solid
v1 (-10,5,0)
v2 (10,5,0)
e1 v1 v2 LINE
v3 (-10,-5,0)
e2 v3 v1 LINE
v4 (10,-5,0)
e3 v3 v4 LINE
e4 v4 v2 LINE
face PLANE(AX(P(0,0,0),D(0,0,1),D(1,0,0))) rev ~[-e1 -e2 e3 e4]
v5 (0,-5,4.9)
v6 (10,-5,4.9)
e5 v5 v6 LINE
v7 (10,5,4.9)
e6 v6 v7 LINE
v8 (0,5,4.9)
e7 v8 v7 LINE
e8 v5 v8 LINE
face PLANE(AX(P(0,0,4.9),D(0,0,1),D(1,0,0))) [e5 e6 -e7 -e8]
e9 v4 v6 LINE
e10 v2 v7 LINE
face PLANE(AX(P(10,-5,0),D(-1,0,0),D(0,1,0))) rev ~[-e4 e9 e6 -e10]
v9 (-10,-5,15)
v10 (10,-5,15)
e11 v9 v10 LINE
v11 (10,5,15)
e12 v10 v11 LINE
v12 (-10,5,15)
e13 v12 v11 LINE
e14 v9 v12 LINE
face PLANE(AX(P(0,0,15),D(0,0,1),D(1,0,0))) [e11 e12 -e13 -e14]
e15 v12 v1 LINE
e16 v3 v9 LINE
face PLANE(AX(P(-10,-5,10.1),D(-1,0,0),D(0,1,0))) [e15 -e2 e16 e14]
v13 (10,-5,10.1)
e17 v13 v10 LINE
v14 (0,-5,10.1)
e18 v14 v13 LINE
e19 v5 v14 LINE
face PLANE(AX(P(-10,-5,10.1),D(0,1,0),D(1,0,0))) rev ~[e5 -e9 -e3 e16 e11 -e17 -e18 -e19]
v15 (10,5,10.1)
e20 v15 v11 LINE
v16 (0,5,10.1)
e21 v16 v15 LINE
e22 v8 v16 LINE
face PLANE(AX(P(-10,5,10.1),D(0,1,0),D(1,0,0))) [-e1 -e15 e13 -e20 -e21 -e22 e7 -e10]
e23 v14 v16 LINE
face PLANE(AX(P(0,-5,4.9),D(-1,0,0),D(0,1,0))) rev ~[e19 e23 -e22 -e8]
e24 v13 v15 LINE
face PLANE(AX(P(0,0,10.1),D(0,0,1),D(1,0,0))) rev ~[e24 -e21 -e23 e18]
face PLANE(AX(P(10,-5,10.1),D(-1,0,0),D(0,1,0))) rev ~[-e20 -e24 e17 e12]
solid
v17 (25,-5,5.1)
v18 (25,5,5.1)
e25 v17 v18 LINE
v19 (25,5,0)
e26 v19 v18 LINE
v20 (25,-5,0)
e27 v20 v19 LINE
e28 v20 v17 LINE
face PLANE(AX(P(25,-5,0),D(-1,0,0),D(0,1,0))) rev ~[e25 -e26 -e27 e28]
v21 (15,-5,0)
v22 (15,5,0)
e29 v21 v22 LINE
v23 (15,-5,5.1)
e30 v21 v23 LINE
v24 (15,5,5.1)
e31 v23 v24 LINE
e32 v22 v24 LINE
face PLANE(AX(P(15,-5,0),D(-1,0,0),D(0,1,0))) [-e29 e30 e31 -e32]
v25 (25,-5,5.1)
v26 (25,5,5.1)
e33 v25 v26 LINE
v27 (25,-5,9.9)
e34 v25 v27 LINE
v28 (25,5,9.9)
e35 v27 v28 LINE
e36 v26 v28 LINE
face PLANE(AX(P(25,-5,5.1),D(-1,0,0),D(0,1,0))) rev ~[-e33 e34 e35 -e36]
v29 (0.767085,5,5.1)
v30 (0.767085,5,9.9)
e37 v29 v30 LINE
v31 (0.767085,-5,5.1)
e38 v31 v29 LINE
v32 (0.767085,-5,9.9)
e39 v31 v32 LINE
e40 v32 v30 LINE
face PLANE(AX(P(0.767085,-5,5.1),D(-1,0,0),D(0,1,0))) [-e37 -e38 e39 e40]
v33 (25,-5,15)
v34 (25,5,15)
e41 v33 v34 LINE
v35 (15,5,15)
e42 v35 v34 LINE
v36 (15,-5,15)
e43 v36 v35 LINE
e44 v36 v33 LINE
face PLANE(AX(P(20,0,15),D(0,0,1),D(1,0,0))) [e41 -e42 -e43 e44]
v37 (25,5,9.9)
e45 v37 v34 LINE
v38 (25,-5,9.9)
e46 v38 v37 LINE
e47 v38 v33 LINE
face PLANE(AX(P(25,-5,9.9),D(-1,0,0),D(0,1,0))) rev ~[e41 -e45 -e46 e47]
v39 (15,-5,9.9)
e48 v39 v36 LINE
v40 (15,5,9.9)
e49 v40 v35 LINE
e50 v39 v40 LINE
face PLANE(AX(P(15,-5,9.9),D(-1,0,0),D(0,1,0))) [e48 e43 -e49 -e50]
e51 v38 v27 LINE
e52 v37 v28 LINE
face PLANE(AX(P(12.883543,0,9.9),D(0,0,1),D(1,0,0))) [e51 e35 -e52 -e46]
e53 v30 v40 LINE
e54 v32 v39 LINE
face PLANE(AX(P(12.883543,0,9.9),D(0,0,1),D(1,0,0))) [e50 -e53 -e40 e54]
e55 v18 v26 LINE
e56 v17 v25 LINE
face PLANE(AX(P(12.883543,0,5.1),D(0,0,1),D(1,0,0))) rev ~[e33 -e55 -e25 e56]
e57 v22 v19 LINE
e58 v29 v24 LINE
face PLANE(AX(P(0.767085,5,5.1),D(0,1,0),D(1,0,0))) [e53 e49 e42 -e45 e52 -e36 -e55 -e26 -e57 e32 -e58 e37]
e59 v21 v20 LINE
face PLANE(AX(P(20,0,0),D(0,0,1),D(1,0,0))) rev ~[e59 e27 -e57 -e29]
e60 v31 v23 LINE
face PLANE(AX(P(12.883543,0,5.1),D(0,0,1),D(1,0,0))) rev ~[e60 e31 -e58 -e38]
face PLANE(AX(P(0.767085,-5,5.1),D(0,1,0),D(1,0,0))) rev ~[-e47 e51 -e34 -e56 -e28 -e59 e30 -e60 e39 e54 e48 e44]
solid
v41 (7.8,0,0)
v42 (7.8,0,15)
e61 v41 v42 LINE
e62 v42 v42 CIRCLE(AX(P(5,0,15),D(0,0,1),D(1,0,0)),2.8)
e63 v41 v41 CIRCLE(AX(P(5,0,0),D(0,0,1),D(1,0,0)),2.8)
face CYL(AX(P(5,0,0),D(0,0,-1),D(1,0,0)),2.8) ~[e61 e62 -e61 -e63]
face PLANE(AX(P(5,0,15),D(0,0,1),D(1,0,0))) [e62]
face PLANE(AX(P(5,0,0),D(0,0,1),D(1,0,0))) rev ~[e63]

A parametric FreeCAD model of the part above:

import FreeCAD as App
import Part
import Sketcher

doc = App.newDocument("Part")
body = doc.addObject("PartDesign::Body", "Body")

# Sketch on XY plane
sketch1 = body.newObject("Sketcher::SketchObject", "Sketch")
sketch1.AttachmentSupport = (doc.getObject("XY_Plane"), [""])
sketch1.MapMode = "FlatFace"
sketch1.addGeometry([
    Part.LineSegment(App.Vector(-10, 5, 0), App.Vector(-10, -5, 0)),
    Part.LineSegment(App.Vector(-10, -5, 0), App.Vector(10, -5, 0)),
    Part.LineSegment(App.Vector(10, -5, 0), App.Vector(10, 5, 0)),
    Part.LineSegment(App.Vector(10, 5, 0), App.Vector(-10, 5, 0)),
], False)
sketch1.addConstraint([
    Sketcher.Constraint("Coincident", 0, 2, 1, 1),
    Sketcher.Constraint("Coincident", 1, 2, 2, 1),
    Sketcher.Constraint("Coincident", 2, 2, 3, 1),
    Sketcher.Constraint("Coincident", 3, 2, 0, 1),
    Sketcher.Constraint("Vertical", 0),
    Sketcher.Constraint("Horizontal", 1),
    Sketcher.Constraint("Vertical", 2),
    Sketcher.Constraint("Horizontal", 3),
    Sketcher.Constraint("Symmetric", 0, 2, 2, 2, -1, 1),
    Sketcher.Constraint("DistanceX", 1, 1, 1, 2, 20.0),
    Sketcher.Constraint("DistanceY", 0, 2, 0, 1, 10.0),
])
pad1 = body.newObject("PartDesign::Pad", "Pad")
pad1.Profile = sketch1
pad1.Length = 4.9

# Sketch on XY plane
sketch2 = body.newObject("Sketcher::SketchObject", "Sketch001")
sketch2.AttachmentSupport = (doc.getObject("XY_Plane"), [""])
sketch2.MapMode = "FlatFace"
sketch2.AttachmentOffset = App.Placement(App.Vector(0, 0, 4.9), App.Rotation())
sketch2.addGeometry([
    Part.LineSegment(App.Vector(-10, 5, 0), App.Vector(-10, -5, 0)),
    Part.LineSegment(App.Vector(-10, -5, 0), App.Vector(0, -5, 0)),
    Part.LineSegment(App.Vector(0, -5, 0), App.Vector(0, 5, 0)),
    Part.LineSegment(App.Vector(0, 5, 0), App.Vector(-10, 5, 0)),
], False)
sketch2.addConstraint([
    Sketcher.Constraint("Coincident", 0, 2, 1, 1),
    Sketcher.Constraint("Coincident", 1, 2, 2, 1),
    Sketcher.Constraint("Coincident", 2, 2, 3, 1),
    Sketcher.Constraint("Coincident", 3, 2, 0, 1),
    Sketcher.Constraint("Vertical", 0),
    Sketcher.Constraint("Horizontal", 1),
    Sketcher.Constraint("Vertical", 2),
    Sketcher.Constraint("Horizontal", 3),
    Sketcher.Constraint("Symmetric", 1, 2, 2, 2, -1, 1),
    Sketcher.Constraint("Equal", 3, 0),
    Sketcher.Constraint("DistanceX", 1, 1, 1, 2, 10.0),
])
pad2 = body.newObject("PartDesign::Pad", "Pad001")
pad2.Profile = sketch2
pad2.Length = 5.2

# Sketch on XY plane
sketch3 = body.newObject("Sketcher::SketchObject", "Sketch002")
sketch3.AttachmentSupport = (doc.getObject("XY_Plane"), [""])
sketch3.MapMode = "FlatFace"
sketch3.AttachmentOffset = App.Placement(App.Vector(0, 0, 10.1), App.Rotation())
sketch3.addGeometry([
    Part.LineSegment(App.Vector(-10, 5, 0), App.Vector(-10, -5, 0)),
    Part.LineSegment(App.Vector(-10, -5, 0), App.Vector(10, -5, 0)),
    Part.LineSegment(App.Vector(10, -5, 0), App.Vector(10, 5, 0)),
    Part.LineSegment(App.Vector(10, 5, 0), App.Vector(-10, 5, 0)),
], False)
sketch3.addConstraint([
    Sketcher.Constraint("Coincident", 0, 2, 1, 1),
    Sketcher.Constraint("Coincident", 1, 2, 2, 1),
    Sketcher.Constraint("Coincident", 2, 2, 3, 1),
    Sketcher.Constraint("Coincident", 3, 2, 0, 1),
    Sketcher.Constraint("Vertical", 0),
    Sketcher.Constraint("Horizontal", 1),
    Sketcher.Constraint("Vertical", 2),
    Sketcher.Constraint("Horizontal", 3),
    Sketcher.Constraint("Symmetric", 0, 2, 2, 2, -1, 1),
    Sketcher.Constraint("DistanceX", 1, 1, 1, 2, 20.0),
    Sketcher.Constraint("DistanceY", 0, 2, 0, 1, 10.0),
])
pad3 = body.newObject("PartDesign::Pad", "Pad002")
pad3.Profile = sketch3
pad3.Length = 4.9
body2 = doc.addObject("PartDesign::Body", "Body001")

# Sketch on XY plane
sketch4 = body2.newObject("Sketcher::SketchObject", "Sketch003")
sketch4.AttachmentSupport = (doc.getObject("XY_Plane001"), [""])
sketch4.MapMode = "FlatFace"
sketch4.addGeometry([
    Part.LineSegment(App.Vector(15, 5, 0), App.Vector(15, -5, 0)),
    Part.LineSegment(App.Vector(15, -5, 0), App.Vector(25, -5, 0)),
    Part.LineSegment(App.Vector(25, -5, 0), App.Vector(25, 5, 0)),
    Part.LineSegment(App.Vector(25, 5, 0), App.Vector(15, 5, 0)),
], False)
sketch4.addConstraint([
    Sketcher.Constraint("Coincident", 0, 2, 1, 1),
    Sketcher.Constraint("Coincident", 1, 2, 2, 1),
    Sketcher.Constraint("Coincident", 2, 2, 3, 1),
    Sketcher.Constraint("Coincident", 3, 2, 0, 1),
    Sketcher.Constraint("Vertical", 0),
    Sketcher.Constraint("Horizontal", 1),
    Sketcher.Constraint("Vertical", 2),
    Sketcher.Constraint("Horizontal", 3),
    Sketcher.Constraint("Equal", 3, 0),
    Sketcher.Constraint("DistanceX", 1, 1, 1, 2, 10.0),
    Sketcher.Constraint("DistanceX", -1, 1, 0, 2, 15.0),
    Sketcher.Constraint("DistanceY", 0, 2, -1, 1, 5.0),
])
pad4 = body2.newObject("PartDesign::Pad", "Pad003")
pad4.Profile = sketch4
pad4.Length = 5.1

# Sketch on XY plane
sketch5 = body2.newObject("Sketcher::SketchObject", "Sketch004")
sketch5.AttachmentSupport = (doc.getObject("XY_Plane001"), [""])
sketch5.MapMode = "FlatFace"
sketch5.AttachmentOffset = App.Placement(App.Vector(0, 0, 5.1), App.Rotation())
sketch5.addGeometry([
    Part.LineSegment(App.Vector(1, 5, 0), App.Vector(1, -5, 0)),
    Part.LineSegment(App.Vector(1, -5, 0), App.Vector(25, -5, 0)),
    Part.LineSegment(App.Vector(25, -5, 0), App.Vector(25, 5, 0)),
    Part.LineSegment(App.Vector(25, 5, 0), App.Vector(1, 5, 0)),
], False)
sketch5.addConstraint([
    Sketcher.Constraint("Coincident", 0, 2, 1, 1),
    Sketcher.Constraint("Coincident", 1, 2, 2, 1),
    Sketcher.Constraint("Coincident", 2, 2, 3, 1),
    Sketcher.Constraint("Coincident", 3, 2, 0, 1),
    Sketcher.Constraint("Vertical", 0),
    Sketcher.Constraint("Horizontal", 1),
    Sketcher.Constraint("Vertical", 2),
    Sketcher.Constraint("Horizontal", 3),
    Sketcher.Constraint("DistanceY", 0, 2, 0, 1, 10.0),
    Sketcher.Constraint("DistanceY", 0, 2, -1, 1, 5.0),
    Sketcher.Constraint("DistanceX", -1, 1, 1, 2, 25.0),
    Sketcher.Constraint("DistanceX", 1, 1, 1, 2, 24.232915),
])
pad5 = body2.newObject("PartDesign::Pad", "Pad004")
pad5.Profile = sketch5
pad5.Length = 4.8

# Sketch on XY plane
sketch6 = body2.newObject("Sketcher::SketchObject", "Sketch005")
sketch6.AttachmentSupport = (doc.getObject("XY_Plane001"), [""])
sketch6.MapMode = "FlatFace"
sketch6.AttachmentOffset = App.Placement(App.Vector(0, 0, 9.9), App.Rotation())
sketch6.addGeometry([
    Part.LineSegment(App.Vector(15, 5, 0), App.Vector(15, -5, 0)),
    Part.LineSegment(App.Vector(15, -5, 0), App.Vector(25, -5, 0)),
    Part.LineSegment(App.Vector(25, -5, 0), App.Vector(25, 5, 0)),
    Part.LineSegment(App.Vector(25, 5, 0), App.Vector(15, 5, 0)),
], False)
sketch6.addConstraint([
    Sketcher.Constraint("Coincident", 0, 2, 1, 1),
    Sketcher.Constraint("Coincident", 1, 2, 2, 1),
    Sketcher.Constraint("Coincident", 2, 2, 3, 1),
    Sketcher.Constraint("Coincident", 3, 2, 0, 1),
    Sketcher.Constraint("Vertical", 0),
    Sketcher.Constraint("Horizontal", 1),
    Sketcher.Constraint("Vertical", 2),
    Sketcher.Constraint("Horizontal", 3),
    Sketcher.Constraint("Equal", 3, 0),
    Sketcher.Constraint("DistanceX", 1, 1, 1, 2, 10.0),
    Sketcher.Constraint("DistanceX", -1, 1, 0, 2, 15.0),
    Sketcher.Constraint("DistanceY", 0, 2, -1, 1, 5.0),
])
pad6 = body2.newObject("PartDesign::Pad", "Pad005")
pad6.Profile = sketch6
pad6.Length = 5.1
body3 = doc.addObject("PartDesign::Body", "Body002")

# Sketch on XY plane
sketch7 = body3.newObject("Sketcher::SketchObject", "Sketch006")
sketch7.AttachmentSupport = (doc.getObject("XY_Plane002"), [""])
sketch7.MapMode = "FlatFace"
sketch7.addGeometry(Part.Circle(App.Vector(5, 0, 0), App.Vector(0, 0, 1), 2.8), False)
sketch7.addConstraint([
    Sketcher.Constraint("PointOnObject", 0, 3, -1),
    Sketcher.Constraint("Diameter", 0, 5.6),
    Sketcher.Constraint("DistanceX", -1, 1, 0, 3, 5.0),
])
pad7 = body3.newObject("PartDesign::Pad", "Pad006")
pad7.Profile = sketch7
pad7.Length = 15

doc.recompute()
